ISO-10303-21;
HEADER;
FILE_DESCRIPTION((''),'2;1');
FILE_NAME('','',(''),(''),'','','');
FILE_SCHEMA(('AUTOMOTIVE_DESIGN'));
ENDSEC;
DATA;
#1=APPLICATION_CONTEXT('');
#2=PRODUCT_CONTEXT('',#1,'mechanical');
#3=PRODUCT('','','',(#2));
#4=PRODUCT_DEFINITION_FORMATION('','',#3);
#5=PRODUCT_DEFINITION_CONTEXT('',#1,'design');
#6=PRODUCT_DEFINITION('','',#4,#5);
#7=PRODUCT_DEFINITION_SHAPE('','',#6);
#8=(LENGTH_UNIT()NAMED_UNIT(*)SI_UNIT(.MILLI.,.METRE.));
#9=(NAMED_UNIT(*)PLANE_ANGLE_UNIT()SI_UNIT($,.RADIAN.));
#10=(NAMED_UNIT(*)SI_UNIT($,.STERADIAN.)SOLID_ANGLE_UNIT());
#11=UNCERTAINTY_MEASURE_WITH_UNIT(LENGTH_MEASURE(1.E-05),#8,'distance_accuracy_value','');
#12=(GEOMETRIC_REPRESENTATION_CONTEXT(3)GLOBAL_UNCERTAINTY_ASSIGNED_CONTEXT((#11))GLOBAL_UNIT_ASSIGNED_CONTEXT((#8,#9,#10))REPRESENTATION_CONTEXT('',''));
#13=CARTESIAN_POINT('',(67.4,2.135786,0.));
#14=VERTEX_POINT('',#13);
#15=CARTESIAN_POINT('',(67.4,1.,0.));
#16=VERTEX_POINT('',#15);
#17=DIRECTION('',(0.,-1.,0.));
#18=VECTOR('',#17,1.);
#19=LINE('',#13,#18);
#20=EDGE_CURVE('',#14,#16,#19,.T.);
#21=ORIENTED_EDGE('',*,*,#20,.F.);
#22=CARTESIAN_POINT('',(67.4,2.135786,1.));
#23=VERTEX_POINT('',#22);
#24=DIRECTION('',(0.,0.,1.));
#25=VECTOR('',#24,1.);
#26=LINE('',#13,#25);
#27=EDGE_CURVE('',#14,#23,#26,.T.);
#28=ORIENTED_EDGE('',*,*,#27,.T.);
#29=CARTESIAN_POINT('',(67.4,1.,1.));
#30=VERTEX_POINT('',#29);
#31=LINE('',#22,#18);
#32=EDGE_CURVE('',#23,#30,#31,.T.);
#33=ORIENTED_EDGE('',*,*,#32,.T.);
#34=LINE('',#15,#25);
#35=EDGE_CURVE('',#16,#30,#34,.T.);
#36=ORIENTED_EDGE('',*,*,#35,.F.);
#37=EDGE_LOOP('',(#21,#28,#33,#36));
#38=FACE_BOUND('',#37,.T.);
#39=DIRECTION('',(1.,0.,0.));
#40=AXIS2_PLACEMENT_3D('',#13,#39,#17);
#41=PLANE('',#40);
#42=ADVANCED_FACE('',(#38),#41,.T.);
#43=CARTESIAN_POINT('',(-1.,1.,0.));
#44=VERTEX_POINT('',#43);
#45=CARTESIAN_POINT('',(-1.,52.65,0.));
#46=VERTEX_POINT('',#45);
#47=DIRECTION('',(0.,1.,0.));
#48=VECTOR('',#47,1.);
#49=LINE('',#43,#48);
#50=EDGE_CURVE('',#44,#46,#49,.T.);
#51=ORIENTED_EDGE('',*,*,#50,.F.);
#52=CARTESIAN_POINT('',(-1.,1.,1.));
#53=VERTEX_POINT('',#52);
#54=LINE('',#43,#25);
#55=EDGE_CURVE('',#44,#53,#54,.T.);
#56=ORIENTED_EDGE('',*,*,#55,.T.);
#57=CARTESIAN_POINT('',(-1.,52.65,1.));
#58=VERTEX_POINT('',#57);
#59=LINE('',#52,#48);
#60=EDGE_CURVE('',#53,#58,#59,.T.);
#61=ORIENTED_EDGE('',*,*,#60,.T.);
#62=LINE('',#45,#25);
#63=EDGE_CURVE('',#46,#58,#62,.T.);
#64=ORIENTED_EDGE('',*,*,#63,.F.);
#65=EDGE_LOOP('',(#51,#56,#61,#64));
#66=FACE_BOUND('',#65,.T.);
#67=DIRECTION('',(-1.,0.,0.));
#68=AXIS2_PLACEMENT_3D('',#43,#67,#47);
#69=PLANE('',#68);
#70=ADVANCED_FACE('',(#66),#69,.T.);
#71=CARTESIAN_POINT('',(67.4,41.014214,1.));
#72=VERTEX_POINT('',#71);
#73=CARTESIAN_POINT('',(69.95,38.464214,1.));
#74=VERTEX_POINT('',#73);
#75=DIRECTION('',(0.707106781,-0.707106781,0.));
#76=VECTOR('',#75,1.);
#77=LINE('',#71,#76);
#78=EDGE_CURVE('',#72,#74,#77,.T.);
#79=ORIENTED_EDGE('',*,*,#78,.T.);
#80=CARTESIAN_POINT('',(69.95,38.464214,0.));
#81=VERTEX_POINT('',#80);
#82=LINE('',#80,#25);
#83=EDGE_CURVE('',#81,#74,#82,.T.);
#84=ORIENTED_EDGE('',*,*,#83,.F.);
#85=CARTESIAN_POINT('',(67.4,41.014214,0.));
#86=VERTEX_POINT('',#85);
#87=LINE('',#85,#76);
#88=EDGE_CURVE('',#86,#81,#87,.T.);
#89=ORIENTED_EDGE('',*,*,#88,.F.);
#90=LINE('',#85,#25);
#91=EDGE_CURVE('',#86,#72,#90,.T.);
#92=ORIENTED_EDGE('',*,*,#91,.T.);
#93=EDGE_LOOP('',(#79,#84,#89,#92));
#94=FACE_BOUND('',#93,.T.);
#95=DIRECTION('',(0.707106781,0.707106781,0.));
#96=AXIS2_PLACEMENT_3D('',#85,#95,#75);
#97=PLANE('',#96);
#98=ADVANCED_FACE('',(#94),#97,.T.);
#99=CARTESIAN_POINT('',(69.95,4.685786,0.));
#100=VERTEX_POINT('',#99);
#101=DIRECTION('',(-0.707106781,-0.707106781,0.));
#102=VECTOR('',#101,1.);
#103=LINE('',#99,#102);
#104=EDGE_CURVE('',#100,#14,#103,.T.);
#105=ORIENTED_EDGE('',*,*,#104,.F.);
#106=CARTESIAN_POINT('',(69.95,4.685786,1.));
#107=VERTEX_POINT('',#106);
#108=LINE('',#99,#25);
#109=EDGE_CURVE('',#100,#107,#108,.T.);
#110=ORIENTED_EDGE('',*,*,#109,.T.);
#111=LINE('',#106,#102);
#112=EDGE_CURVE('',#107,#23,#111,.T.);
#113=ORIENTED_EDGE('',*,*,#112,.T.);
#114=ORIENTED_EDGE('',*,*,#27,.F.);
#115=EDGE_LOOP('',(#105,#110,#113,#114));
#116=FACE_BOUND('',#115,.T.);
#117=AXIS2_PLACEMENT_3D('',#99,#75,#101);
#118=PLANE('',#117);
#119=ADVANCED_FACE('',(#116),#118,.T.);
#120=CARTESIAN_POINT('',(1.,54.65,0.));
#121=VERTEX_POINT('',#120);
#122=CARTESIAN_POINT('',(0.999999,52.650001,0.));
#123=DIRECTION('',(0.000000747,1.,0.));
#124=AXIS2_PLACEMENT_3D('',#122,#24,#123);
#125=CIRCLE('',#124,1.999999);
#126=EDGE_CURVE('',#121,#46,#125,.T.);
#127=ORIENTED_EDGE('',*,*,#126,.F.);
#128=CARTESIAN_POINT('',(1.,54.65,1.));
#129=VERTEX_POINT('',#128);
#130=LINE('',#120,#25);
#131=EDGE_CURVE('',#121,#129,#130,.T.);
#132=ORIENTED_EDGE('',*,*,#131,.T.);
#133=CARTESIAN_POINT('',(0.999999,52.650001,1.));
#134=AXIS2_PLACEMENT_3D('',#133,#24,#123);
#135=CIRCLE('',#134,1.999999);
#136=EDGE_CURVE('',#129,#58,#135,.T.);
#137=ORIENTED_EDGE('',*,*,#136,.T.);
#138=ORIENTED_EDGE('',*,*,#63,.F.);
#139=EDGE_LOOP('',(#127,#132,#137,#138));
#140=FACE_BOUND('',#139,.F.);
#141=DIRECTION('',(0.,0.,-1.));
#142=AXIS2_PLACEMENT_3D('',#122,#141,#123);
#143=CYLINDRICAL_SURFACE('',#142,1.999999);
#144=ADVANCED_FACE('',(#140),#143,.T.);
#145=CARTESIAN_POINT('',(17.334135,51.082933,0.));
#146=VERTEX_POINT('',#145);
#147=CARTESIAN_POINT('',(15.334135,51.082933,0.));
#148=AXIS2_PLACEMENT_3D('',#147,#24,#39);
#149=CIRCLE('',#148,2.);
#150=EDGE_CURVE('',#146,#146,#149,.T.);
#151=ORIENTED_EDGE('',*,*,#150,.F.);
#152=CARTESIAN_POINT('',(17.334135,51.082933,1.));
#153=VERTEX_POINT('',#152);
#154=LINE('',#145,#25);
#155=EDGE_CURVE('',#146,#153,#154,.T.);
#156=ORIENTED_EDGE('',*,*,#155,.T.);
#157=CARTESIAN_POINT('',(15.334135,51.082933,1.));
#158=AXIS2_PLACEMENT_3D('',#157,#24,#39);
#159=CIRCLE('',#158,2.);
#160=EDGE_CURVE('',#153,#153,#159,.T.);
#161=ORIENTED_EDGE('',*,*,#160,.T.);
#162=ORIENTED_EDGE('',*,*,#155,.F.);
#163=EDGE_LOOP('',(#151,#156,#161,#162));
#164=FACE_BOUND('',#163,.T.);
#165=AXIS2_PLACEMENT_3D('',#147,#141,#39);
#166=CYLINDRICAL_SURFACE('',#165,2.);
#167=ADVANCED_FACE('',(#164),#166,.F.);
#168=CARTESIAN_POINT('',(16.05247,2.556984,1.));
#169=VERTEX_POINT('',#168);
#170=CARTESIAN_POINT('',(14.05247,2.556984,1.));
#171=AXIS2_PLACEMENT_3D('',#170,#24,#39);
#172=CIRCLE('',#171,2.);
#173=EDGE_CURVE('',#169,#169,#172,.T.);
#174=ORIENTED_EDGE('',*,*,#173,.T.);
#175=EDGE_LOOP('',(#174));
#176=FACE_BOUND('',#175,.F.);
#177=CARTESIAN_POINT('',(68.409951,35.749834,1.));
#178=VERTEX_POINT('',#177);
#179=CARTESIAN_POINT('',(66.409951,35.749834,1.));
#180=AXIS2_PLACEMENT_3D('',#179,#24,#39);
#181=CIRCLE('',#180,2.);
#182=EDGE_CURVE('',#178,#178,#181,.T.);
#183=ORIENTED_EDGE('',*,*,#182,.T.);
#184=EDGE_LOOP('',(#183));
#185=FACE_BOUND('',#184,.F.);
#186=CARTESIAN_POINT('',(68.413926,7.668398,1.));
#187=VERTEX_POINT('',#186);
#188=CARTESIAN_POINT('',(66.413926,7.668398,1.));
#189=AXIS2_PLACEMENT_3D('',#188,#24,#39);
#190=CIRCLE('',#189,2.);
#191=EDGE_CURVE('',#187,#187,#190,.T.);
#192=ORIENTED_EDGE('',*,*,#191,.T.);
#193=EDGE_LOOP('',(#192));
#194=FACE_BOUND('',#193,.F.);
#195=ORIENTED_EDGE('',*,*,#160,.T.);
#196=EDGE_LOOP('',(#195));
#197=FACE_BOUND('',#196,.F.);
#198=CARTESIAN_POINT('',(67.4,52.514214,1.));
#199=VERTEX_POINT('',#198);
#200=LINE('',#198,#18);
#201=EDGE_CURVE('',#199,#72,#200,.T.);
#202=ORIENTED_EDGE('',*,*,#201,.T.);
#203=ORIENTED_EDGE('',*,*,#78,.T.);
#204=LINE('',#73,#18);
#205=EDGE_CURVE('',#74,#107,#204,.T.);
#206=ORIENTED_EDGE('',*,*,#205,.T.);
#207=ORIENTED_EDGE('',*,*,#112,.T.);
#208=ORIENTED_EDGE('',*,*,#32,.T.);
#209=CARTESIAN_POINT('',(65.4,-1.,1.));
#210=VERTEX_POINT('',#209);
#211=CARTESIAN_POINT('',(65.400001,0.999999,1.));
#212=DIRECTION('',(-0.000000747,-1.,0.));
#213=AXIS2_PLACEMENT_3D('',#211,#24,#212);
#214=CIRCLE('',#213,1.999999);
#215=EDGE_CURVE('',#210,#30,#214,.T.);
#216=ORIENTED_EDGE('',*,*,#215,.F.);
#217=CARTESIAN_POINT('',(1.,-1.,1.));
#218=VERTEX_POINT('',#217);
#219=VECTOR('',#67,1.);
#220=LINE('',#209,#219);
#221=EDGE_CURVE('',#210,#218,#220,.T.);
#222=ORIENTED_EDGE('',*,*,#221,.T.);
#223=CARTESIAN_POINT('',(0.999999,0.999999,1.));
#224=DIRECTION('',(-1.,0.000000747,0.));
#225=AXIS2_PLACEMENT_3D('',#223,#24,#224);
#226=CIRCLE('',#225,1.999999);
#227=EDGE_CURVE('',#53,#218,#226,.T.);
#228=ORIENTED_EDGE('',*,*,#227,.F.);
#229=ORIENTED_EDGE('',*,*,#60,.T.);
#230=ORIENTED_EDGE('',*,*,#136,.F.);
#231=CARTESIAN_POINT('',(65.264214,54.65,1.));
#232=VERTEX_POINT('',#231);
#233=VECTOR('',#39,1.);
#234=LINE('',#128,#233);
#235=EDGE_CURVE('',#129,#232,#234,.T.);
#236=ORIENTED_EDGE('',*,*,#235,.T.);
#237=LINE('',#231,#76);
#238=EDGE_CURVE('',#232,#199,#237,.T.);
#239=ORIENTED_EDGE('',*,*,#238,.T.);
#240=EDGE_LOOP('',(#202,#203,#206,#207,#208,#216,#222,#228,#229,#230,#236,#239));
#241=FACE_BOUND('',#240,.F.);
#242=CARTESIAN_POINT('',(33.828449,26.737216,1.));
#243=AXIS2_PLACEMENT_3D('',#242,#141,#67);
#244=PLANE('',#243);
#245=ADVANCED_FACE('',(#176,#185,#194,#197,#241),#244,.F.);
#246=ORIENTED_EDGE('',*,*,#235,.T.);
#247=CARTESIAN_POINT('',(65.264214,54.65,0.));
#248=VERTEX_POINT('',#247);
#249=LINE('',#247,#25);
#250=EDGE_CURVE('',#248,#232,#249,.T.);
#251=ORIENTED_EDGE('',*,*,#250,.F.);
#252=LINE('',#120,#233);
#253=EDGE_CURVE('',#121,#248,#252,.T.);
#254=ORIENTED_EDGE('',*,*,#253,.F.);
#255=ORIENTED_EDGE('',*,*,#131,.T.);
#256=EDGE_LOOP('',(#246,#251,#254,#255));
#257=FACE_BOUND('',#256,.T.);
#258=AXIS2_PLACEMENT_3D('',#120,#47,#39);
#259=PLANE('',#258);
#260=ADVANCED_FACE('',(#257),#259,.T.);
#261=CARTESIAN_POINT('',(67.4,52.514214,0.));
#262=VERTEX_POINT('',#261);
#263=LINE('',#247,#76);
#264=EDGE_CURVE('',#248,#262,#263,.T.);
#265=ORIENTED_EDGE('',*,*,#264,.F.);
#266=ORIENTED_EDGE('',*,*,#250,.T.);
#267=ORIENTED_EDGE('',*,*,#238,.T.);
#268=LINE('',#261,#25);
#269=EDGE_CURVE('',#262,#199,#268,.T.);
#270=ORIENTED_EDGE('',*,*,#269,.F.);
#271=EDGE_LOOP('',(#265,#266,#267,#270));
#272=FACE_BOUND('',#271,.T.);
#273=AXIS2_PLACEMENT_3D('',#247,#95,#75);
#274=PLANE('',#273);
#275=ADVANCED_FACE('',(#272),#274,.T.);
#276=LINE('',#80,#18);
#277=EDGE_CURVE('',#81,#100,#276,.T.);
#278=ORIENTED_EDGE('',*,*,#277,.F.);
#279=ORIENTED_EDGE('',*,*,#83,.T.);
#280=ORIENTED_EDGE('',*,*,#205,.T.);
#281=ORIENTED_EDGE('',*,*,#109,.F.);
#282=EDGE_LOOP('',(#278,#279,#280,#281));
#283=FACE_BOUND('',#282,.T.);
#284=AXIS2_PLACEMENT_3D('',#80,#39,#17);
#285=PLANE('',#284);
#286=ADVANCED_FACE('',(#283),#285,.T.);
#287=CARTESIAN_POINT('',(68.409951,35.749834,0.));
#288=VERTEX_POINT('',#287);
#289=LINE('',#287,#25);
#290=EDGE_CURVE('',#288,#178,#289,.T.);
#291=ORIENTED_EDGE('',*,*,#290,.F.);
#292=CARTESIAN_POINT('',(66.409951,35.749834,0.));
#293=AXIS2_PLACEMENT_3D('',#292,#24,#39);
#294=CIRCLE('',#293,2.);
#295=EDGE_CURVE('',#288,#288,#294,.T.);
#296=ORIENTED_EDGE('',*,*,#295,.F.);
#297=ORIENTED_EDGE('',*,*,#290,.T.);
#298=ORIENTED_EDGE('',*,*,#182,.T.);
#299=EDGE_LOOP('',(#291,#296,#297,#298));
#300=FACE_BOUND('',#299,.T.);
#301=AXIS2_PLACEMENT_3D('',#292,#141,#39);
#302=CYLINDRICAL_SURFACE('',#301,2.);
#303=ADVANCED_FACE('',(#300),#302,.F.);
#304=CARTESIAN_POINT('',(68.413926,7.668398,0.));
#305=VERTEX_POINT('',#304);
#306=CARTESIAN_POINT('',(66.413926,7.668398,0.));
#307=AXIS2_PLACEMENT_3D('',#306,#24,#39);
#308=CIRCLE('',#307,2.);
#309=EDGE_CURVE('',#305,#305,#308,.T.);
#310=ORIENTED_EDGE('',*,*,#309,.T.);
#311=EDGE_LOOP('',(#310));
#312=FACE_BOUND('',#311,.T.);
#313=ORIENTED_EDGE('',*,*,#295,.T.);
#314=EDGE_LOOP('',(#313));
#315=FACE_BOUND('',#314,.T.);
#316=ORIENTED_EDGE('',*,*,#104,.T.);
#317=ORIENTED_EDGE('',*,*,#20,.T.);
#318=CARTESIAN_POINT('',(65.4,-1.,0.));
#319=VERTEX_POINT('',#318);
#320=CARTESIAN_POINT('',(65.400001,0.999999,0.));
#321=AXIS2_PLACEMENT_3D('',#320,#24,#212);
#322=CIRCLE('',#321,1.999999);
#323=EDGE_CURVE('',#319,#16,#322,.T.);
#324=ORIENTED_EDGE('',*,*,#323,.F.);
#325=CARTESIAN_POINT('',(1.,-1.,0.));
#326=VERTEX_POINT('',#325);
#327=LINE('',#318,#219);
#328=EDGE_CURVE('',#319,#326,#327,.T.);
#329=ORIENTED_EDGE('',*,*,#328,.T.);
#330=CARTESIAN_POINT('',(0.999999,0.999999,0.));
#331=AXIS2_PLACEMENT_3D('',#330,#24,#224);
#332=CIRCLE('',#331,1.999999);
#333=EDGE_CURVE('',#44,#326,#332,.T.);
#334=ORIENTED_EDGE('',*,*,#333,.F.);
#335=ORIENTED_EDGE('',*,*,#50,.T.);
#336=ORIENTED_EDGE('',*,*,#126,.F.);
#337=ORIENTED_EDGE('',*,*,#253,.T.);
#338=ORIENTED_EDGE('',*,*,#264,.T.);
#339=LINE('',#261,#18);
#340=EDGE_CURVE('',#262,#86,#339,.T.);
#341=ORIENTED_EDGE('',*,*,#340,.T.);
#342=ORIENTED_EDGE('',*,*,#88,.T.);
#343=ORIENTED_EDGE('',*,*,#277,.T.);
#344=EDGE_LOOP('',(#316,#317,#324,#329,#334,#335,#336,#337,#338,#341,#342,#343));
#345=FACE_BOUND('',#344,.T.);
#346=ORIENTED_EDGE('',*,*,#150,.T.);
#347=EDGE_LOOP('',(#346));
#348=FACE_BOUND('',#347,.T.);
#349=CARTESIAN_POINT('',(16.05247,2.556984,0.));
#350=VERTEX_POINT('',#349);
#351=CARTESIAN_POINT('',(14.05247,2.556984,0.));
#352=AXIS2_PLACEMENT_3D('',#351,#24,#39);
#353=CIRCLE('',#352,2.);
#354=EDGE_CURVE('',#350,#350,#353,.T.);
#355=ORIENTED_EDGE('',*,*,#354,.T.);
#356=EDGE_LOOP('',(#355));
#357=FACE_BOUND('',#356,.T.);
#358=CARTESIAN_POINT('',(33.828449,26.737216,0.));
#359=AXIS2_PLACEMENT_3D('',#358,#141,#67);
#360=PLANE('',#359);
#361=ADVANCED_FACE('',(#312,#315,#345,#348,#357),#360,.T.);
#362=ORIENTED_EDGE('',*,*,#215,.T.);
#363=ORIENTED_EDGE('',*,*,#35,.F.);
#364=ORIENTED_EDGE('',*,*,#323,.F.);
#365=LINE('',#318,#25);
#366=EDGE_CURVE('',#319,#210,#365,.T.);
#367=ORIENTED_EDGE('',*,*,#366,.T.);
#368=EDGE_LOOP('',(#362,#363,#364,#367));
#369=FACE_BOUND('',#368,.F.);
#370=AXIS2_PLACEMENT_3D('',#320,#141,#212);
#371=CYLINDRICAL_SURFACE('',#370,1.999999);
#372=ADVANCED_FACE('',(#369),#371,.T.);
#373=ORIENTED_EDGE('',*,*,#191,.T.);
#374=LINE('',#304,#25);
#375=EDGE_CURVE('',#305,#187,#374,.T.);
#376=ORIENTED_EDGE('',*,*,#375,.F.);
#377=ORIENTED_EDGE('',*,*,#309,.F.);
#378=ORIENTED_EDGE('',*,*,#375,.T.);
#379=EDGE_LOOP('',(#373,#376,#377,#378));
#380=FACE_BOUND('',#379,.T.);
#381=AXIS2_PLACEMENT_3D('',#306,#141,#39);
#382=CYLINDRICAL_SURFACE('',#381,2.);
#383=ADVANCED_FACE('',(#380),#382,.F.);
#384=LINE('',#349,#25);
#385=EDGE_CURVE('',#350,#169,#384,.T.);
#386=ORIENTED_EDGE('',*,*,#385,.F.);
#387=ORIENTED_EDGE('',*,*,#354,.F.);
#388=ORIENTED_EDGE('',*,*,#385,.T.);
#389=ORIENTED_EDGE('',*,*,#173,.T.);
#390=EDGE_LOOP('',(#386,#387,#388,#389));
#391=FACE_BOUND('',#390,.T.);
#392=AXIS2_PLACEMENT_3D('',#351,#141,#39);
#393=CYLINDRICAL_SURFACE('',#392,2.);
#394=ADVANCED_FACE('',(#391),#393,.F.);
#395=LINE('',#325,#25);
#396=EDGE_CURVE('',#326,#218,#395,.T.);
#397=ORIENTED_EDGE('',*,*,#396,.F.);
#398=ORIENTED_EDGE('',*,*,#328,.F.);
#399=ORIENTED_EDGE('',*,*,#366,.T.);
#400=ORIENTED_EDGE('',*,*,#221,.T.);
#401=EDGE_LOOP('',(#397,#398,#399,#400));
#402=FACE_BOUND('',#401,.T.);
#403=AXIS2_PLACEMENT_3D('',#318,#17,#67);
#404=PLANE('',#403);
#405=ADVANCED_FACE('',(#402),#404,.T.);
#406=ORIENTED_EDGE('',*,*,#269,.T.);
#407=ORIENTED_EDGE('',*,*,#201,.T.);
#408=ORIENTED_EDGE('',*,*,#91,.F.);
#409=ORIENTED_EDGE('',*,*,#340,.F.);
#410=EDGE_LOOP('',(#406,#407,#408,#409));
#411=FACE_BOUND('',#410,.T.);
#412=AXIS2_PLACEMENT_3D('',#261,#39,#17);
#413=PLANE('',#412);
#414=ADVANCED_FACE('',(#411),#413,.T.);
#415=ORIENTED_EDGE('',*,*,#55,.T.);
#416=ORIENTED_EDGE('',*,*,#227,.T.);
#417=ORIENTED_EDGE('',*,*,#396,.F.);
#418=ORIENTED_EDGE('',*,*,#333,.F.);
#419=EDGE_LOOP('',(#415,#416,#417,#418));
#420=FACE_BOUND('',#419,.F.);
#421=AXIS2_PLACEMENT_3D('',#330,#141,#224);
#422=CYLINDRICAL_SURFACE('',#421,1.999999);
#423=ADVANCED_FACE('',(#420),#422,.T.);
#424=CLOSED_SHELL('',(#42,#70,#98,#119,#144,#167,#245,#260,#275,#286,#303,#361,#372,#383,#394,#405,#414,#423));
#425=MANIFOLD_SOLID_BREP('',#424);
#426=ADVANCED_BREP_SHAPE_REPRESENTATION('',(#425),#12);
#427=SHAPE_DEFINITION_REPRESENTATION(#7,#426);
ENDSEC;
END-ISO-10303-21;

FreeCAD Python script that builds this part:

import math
import FreeCAD as App
import Part
import Sketcher

V = App.Vector

doc = App.newDocument("Part")
body = doc.addObject("PartDesign::Body", "Body")

# Sketch on XY plane
sketch1 = body.newObject("Sketcher::SketchObject", "Sketch")
sketch1.AttachmentSupport = (doc.getObject("XY_Plane"), [""])
sketch1.MapMode = "FlatFace"
sketch1.addGeometry([
    Part.LineSegment(V(65.3, 54.6, 0), V(1, 54.6, 0)),  # 0
    Part.ArcOfCircle(Part.Circle(V(1, 52.7, 0), V(0, 0, 1), 2), math.radians(90), math.radians(180)),  # 1
    Part.LineSegment(V(-1, 52.6, 0), V(-1, 1, 0)),  # 2
    Part.ArcOfCircle(Part.Circle(V(1, 1, 0), V(0, 0, 1), 2), math.radians(180), math.radians(270)),  # 3
    Part.LineSegment(V(1, -1, 0), V(65.4, -1, 0)),  # 4
    Part.ArcOfCircle(Part.Circle(V(65.4, 1, 0), V(0, 0, 1), 2), math.radians(-90), math.radians(0)),  # 5
    Part.LineSegment(V(67.4, 1, 0), V(67.4, 2.1, 0)),  # 6
    Part.LineSegment(V(67.4, 2.1, 0), V(70, 4.7, 0)),  # 7
    Part.LineSegment(V(70, 4.7, 0), V(70, 38.5, 0)),  # 8
    Part.LineSegment(V(70, 38.5, 0), V(67.4, 41, 0)),  # 9
    Part.LineSegment(V(67.4, 41, 0), V(67.4, 52.5, 0)),  # 10
    Part.LineSegment(V(67.4, 52.5, 0), V(65.3, 54.6, 0)),  # 11
    Part.Circle(V(66.4, 7.7, 0), V(0, 0, 1), 2),  # 12
    Part.Circle(V(14.1, 2.6, 0), V(0, 0, 1), 2),  # 13
    Part.Circle(V(66.4, 35.7, 0), V(0, 0, 1), 2),  # 14
    Part.Circle(V(15.3, 51.1, 0), V(0, 0, 1), 2),  # 15
], False)
sketch1.addConstraint([
    Sketcher.Constraint("Tangent", 0, 2, 1, 1),
    Sketcher.Constraint("Tangent", 1, 2, 2, 1),
    Sketcher.Constraint("Tangent", 2, 2, 3, 1),
    Sketcher.Constraint("Tangent", 3, 2, 4, 1),
    Sketcher.Constraint("Tangent", 4, 2, 5, 1),
    Sketcher.Constraint("Tangent", 5, 2, 6, 1),
    Sketcher.Constraint("Coincident", 6, 2, 7, 1),
    Sketcher.Constraint("Coincident", 7, 2, 8, 1),
    Sketcher.Constraint("Coincident", 8, 2, 9, 1),
    Sketcher.Constraint("Coincident", 9, 2, 10, 1),
    Sketcher.Constraint("Coincident", 10, 2, 11, 1),
    Sketcher.Constraint("Coincident", 11, 2, 0, 1),
    Sketcher.Constraint("Horizontal", 0),
    Sketcher.Constraint("Vertical", 2),
    Sketcher.Constraint("Horizontal", 4),
    Sketcher.Constraint("Vertical", 6),
    Sketcher.Constraint("Vertical", 8),
    Sketcher.Constraint("Vertical", 10),
    Sketcher.Constraint("Equal", 1, 3),
    Sketcher.Constraint("Equal", 3, 5),
    Sketcher.Constraint("Equal", 5, 12),
    Sketcher.Constraint("Equal", 12, 13),
    Sketcher.Constraint("Equal", 13, 14),
    Sketcher.Constraint("Equal", 14, 15),
    Sketcher.Constraint("Symmetric", 2, 2, 3, 2, -1, 1),
    Sketcher.Constraint("Perpendicular", 7, 9),
    Sketcher.Constraint("Parallel", 9, 11),
    Sketcher.Constraint("Vertical", 6, 2, 9, 2),
    Sketcher.Constraint("Equal", 7, 9),
    Sketcher.Constraint("Diameter", 12, 4.0),
    Sketcher.Constraint("DistanceX", 4, 1, 4, 2, 64.4),
    Sketcher.Constraint("DistanceY", 10, 1, 10, 2, 11.5),
    Sketcher.Constraint("DistanceY", 2, 2, 2, 1, 51.65),
    Sketcher.Constraint("DistanceX", -1, 1, 7, 2, 69.95),
    Sketcher.Constraint("DistanceY", 5, 3, 12, 3, 6.668399),
    Sketcher.Constraint("DistanceY", 14, 3, 15, 3, 15.333099),
    Sketcher.Constraint("DistanceX", 0, 2, 0, 1, 64.264214),
    Sketcher.Constraint("DistanceY", 6, 1, 6, 2, 1.135786),
    Sketcher.Constraint("DistanceX", -1, 1, 13, 3, 14.05247),
    Sketcher.Constraint("DistanceX", -1, 1, 14, 3, 66.409951),
    Sketcher.Constraint("DistanceY", 13, 3, 14, 3, 33.19285),
    Sketcher.Constraint("DistanceY", 15, 3, 1, 3, 1.567068),
    Sketcher.Constraint("DistanceX", 15, 3, 12, 3, 51.079791),
    Sketcher.Constraint("DistanceX", -1, 1, 12, 3, 66.413926),
])
pad1 = body.newObject("PartDesign::Pad", "Pad")
pad1.Profile = sketch1
pad1.Length = 1

doc.recompute()
